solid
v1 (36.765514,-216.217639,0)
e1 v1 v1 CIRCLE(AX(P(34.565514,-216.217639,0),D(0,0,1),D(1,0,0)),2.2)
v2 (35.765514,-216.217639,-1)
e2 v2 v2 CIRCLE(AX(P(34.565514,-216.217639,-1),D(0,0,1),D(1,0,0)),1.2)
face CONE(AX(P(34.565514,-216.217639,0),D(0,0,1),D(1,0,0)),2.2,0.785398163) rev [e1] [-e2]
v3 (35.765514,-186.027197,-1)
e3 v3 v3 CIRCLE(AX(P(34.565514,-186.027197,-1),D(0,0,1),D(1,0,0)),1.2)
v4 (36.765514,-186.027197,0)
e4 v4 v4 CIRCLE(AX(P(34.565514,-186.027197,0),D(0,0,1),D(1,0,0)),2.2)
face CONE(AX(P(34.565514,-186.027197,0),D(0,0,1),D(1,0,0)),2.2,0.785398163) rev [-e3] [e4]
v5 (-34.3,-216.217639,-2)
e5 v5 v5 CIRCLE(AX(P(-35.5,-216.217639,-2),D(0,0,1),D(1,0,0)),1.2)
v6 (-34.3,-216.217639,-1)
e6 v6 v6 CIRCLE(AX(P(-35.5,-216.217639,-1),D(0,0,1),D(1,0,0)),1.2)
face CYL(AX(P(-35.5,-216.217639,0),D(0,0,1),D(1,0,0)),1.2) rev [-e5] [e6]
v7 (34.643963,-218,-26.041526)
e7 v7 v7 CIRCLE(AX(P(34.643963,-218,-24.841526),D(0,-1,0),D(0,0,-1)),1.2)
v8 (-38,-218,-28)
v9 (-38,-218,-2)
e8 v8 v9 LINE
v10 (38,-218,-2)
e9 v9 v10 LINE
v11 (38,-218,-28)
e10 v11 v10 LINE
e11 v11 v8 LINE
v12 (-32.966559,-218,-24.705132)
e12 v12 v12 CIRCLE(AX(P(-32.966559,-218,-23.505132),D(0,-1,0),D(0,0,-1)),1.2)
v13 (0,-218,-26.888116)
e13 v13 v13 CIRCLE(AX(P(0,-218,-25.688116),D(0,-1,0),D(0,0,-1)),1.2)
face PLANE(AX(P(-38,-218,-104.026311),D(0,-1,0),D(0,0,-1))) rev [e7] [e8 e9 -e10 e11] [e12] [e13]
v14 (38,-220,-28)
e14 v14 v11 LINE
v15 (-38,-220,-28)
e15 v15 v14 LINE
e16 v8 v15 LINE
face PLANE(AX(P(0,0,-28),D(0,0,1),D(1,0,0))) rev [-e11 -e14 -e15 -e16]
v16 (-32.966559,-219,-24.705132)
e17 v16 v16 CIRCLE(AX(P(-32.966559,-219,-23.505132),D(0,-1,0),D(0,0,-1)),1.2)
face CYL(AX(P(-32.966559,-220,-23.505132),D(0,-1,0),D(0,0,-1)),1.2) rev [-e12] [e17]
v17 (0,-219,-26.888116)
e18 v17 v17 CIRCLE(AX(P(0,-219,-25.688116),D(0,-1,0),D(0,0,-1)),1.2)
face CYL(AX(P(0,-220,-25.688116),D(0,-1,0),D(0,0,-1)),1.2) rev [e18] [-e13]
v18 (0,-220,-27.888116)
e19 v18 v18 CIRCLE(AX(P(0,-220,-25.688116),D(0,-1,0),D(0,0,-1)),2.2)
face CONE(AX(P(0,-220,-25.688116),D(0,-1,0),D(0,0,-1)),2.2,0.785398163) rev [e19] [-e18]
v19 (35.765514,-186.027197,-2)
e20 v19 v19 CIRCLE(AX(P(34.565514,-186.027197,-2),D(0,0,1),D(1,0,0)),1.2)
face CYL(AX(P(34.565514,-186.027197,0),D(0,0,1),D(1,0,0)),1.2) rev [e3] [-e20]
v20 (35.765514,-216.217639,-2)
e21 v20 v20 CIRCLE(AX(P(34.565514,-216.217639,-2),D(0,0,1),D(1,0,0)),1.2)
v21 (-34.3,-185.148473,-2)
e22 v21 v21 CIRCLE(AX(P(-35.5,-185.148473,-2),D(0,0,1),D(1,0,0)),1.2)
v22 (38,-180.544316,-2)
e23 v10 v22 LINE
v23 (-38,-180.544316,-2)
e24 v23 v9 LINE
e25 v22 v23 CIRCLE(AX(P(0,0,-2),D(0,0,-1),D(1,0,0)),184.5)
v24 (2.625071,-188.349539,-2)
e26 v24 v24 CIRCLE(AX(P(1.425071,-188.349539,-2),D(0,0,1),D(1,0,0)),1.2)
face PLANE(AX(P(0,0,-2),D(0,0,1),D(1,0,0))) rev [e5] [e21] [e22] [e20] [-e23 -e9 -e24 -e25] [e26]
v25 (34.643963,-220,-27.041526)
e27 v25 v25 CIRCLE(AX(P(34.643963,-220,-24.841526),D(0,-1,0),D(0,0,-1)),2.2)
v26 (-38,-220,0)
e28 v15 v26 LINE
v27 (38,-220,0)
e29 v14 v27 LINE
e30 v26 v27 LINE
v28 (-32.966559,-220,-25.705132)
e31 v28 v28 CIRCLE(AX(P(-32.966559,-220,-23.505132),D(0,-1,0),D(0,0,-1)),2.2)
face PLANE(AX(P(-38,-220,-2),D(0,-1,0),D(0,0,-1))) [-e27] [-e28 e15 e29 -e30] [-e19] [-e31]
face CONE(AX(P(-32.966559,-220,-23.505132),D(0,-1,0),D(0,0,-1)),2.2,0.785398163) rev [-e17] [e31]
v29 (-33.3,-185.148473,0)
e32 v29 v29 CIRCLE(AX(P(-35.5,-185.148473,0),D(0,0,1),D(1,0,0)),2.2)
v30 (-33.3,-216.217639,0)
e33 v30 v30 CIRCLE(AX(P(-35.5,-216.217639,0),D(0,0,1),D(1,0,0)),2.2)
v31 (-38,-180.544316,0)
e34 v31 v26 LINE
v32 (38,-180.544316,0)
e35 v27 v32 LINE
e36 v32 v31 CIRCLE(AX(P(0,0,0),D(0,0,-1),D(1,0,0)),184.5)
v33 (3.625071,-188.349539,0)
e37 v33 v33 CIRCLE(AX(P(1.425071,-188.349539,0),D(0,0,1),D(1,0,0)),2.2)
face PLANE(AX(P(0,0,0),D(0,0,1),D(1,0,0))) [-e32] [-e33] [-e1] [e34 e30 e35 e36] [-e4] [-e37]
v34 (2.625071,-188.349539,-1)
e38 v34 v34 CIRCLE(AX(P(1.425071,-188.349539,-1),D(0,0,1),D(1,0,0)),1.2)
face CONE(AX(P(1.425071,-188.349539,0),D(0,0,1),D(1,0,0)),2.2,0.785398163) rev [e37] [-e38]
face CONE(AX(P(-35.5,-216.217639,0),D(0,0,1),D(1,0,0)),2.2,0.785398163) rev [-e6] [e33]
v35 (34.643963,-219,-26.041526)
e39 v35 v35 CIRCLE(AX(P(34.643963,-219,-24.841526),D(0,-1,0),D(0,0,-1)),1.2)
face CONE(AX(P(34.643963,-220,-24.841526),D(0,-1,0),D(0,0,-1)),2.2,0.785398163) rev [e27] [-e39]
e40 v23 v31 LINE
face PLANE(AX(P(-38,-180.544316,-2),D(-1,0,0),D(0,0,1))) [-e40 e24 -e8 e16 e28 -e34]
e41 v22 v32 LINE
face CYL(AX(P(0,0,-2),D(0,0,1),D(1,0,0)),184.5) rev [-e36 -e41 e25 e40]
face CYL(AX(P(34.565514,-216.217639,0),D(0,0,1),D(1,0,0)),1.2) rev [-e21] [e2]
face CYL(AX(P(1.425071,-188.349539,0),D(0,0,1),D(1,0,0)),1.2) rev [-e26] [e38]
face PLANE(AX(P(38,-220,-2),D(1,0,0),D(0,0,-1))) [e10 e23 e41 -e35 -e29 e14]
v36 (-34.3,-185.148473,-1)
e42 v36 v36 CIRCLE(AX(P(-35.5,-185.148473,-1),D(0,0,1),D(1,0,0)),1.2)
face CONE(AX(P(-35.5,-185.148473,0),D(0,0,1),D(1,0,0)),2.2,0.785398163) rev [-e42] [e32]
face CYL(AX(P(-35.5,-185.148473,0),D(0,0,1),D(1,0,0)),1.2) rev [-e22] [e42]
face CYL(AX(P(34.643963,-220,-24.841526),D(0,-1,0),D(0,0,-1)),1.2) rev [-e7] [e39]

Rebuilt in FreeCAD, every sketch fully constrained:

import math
import FreeCAD as App
import Part
import Sketcher


def add_polygon(sketch, points):
    """Adds a closed chain of lines whose ends are joined by coincident constraints."""
    first, n = sketch.GeometryCount, len(points)
    for a, b in zip(points, points[1:] + points[:1]):
        sketch.addGeometry(Part.LineSegment(App.Vector(*a, 0), App.Vector(*b, 0)), False)
    for i in range(n):
        sketch.addConstraint(Sketcher.Constraint("Coincident", first + i, 2, first + (i + 1) % n, 1))

doc = App.newDocument("Part")
params = doc.addObject("Spreadsheet::Sheet", "Params")
for row, (alias, value) in enumerate([
    ("sketch1_radius", "184.5 mm"),
    ("sketch1_width", "76 mm"),
    ("pad1_length", "2 mm"),
    ("sketch2_width", "76 mm"),
    ("sketch2_height", "2 mm"),
    ("pad2_length", "26 mm"),
    ("sketch3_diameter", "2.4 mm"),
    ("hole_diameter", "2.4 mm"),
    ("hole_csink_diameter", "4.4 mm"),
    ("sketch4_diameter", "2.4 mm"),
    ("hole2_diameter", "2.4 mm"),
    ("hole2_csink_diameter", "4.4 mm"),
], start=1):
    params.set(f"A{row}", alias)
    params.set(f"B{row}", "=" + value)
    params.setAlias(f"B{row}", alias)

body = doc.addObject("PartDesign::Body", "Body")

# Sketch on XY plane
sketch1 = doc.addObject("Sketcher::SketchObject", "Sketch")
body.addObject(sketch1)
sketch1.AttachmentSupport = (doc.XY_Plane, [""])
sketch1.MapMode = "FlatFace"
sketch1.addGeometry([
    Part.LineSegment(App.Vector(38, -220, 0), App.Vector(38, -181, 0)),
    Part.ArcOfCircle(Part.Circle(App.Vector(0, 0, 0), App.Vector(0, 0, 1), 184), math.radians(-102), math.radians(-78)),
    Part.LineSegment(App.Vector(-38, -181, 0), App.Vector(-38, -220, 0)),
    Part.LineSegment(App.Vector(-38, -220, 0), App.Vector(38, -220, 0)),
], False)
sketch1.addConstraint([
    Sketcher.Constraint("Coincident", 0, 2, 1, 2),
    Sketcher.Constraint("Coincident", 1, 1, 2, 1),
    Sketcher.Constraint("Coincident", 2, 2, 3, 1),
    Sketcher.Constraint("Coincident", 3, 2, 0, 1),
    Sketcher.Constraint("Vertical", 0),
    Sketcher.Constraint("Vertical", 2),
    Sketcher.Constraint("Horizontal", 3),
    Sketcher.Constraint("Coincident", 1, 3, -1, 1),
    Sketcher.Constraint("Horizontal", 0, 2, 1, 1),
    Sketcher.Constraint("Radius", 1, 184.5),
    Sketcher.Constraint("DistanceX", 3, 1, 3, 2, 76.0),
    Sketcher.Constraint("DistanceY", 2, 2, -1, 1, 220.0),
])
sketch1.setExpression("Constraints[9]", "Params.sketch1_radius")
sketch1.setExpression("Constraints[10]", "Params.sketch1_width")
pad1 = doc.addObject("PartDesign::Pad", "Pad")
body.addObject(pad1)
pad1.Profile = sketch1
pad1.setExpression("Length", "Params.pad1_length")
pad1.Reversed = True

# Sketch on XY plane
sketch2 = doc.addObject("Sketcher::SketchObject", "Sketch001")
body.addObject(sketch2)
sketch2.AttachmentSupport = (doc.XY_Plane, [""])
sketch2.MapMode = "FlatFace"
sketch2.AttachmentOffset = App.Placement(App.Vector(0, 0, -2), App.Rotation())
add_polygon(sketch2, [(38, -218), (38, -220), (-38, -220), (-38, -218)])  # lines 0-3
sketch2.addConstraint([
    Sketcher.Constraint("Vertical", 0),
    Sketcher.Constraint("Horizontal", 1),
    Sketcher.Constraint("Vertical", 2),
    Sketcher.Constraint("Horizontal", 3),
    Sketcher.Constraint("DistanceX", 1, 2, 1, 1, 76.0),
    Sketcher.Constraint("DistanceY", 0, 2, 0, 1, 2.0),
    Sketcher.Constraint("DistanceX", -1, 1, 0, 2, 38.0),
    Sketcher.Constraint("DistanceY", 0, 2, -1, 1, 220.0),
])
sketch2.setExpression("Constraints[8]", "Params.sketch2_width")
sketch2.setExpression("Constraints[9]", "Params.sketch2_height")
pad2 = doc.addObject("PartDesign::Pad", "Pad001")
body.addObject(pad2)
pad2.Profile = sketch2
pad2.setExpression("Length", "Params.pad2_length")
pad2.Reversed = True

# Sketch on XY plane
sketch3 = doc.addObject("Sketcher::SketchObject", "Sketch002")
body.addObject(sketch3)
sketch3.AttachmentSupport = (doc.XY_Plane, [""])
sketch3.MapMode = "FlatFace"
sketch3.addGeometry([
    Part.Circle(App.Vector(-35.5, -216.2, 0), App.Vector(0, 0, 1), 1.2),  # 0
    Part.Circle(App.Vector(-35.5, -185.1, 0), App.Vector(0, 0, 1), 1.2),  # 1
    Part.Circle(App.Vector(1.4, -188.3, 0), App.Vector(0, 0, 1), 1.2),  # 2
    Part.Circle(App.Vector(34.6, -186, 0), App.Vector(0, 0, 1), 1.2),  # 3
    Part.Circle(App.Vector(34.6, -216.2, 0), App.Vector(0, 0, 1), 1.2),  # 4
], False)
sketch3.addConstraint([
    Sketcher.Constraint("Equal", 0, 1),
    Sketcher.Constraint("Equal", 1, 2),
    Sketcher.Constraint("Equal", 2, 3),
    Sketcher.Constraint("Equal", 3, 4),
    Sketcher.Constraint("Horizontal", 0, 3, 4, 3),
    Sketcher.Constraint("Vertical", 0, 3, 1, 3),
    Sketcher.Constraint("Vertical", 3, 3, 4, 3),
    Sketcher.Constraint("Diameter", 0, 2.4),
    Sketcher.Constraint("DistanceX", 0, 3, -1, 1, 35.5),
    Sketcher.Constraint("DistanceY", 0, 3, 2, 3, 27.8681),
    Sketcher.Constraint("DistanceY", 0, 3, -1, 1, 216.217639),
    Sketcher.Constraint("DistanceX", -1, 1, 2, 3, 1.425071),
    Sketcher.Constraint("DistanceY", 2, 3, 3, 3, 2.322342),
    Sketcher.Constraint("DistanceY", 1, 3, -1, 1, 185.148473),
    Sketcher.Constraint("DistanceX", -1, 1, 3, 3, 34.565514),
])
sketch3.setExpression("Constraints[7]", "Params.sketch3_diameter")
doc.recompute()
hole = doc.addObject("PartDesign::Hole", "Hole")
body.addObject(hole)
hole.Profile = sketch3
hole.ThreadType = "None"
hole.setExpression("Diameter", "Params.hole_diameter")
hole.DepthType = "ThroughAll"
hole.HoleCutType = "Countersink"
hole.setExpression("HoleCutDiameter", "Params.hole_csink_diameter")
hole.HoleCutCountersinkAngle = 90

# Sketch on XZ plane
sketch4 = doc.addObject("Sketcher::SketchObject", "Sketch003")
body.addObject(sketch4)
sketch4.AttachmentSupport = (doc.XZ_Plane, [""])
sketch4.MapMode = "FlatFace"
sketch4.AttachmentOffset = App.Placement(App.Vector(0, 0, 220), App.Rotation())
sketch4.addGeometry([
    Part.Circle(App.Vector(34.6, -24.8, 0), App.Vector(0, 0, 1), 1.2),
    Part.Circle(App.Vector(0, -25.7, 0), App.Vector(0, 0, 1), 1.2),
    Part.Circle(App.Vector(-33, -23.5, 0), App.Vector(0, 0, 1), 1.2),
], False)
sketch4.addConstraint([
    Sketcher.Constraint("Equal", 0, 1),
    Sketcher.Constraint("Equal", 1, 2),
    Sketcher.Constraint("PointOnObject", 1, 3, -2),
    Sketcher.Constraint("Diameter", 0, 2.4),
    Sketcher.Constraint("DistanceX", 2, 3, -1, 1, 32.966559),
    Sketcher.Constraint("DistanceY", 1, 3, 0, 3, 0.84659),
    Sketcher.Constraint("DistanceX", -1, 1, 0, 3, 34.643963),
    Sketcher.Constraint("DistanceY", 0, 3, -1, 1, 24.841526),
    Sketcher.Constraint("DistanceY", 2, 3, -1, 1, 23.505132),
])
sketch4.setExpression("Constraints[3]", "Params.sketch4_diameter")
doc.recompute()
hole2 = doc.addObject("PartDesign::Hole", "Hole001")
body.addObject(hole2)
hole2.Profile = sketch4
hole2.ThreadType = "None"
hole2.setExpression("Diameter", "Params.hole2_diameter")
hole2.DepthType = "ThroughAll"
hole2.HoleCutType = "Countersink"
hole2.setExpression("HoleCutDiameter", "Params.hole2_csink_diameter")
hole2.HoleCutCountersinkAngle = 90

doc.recompute()
